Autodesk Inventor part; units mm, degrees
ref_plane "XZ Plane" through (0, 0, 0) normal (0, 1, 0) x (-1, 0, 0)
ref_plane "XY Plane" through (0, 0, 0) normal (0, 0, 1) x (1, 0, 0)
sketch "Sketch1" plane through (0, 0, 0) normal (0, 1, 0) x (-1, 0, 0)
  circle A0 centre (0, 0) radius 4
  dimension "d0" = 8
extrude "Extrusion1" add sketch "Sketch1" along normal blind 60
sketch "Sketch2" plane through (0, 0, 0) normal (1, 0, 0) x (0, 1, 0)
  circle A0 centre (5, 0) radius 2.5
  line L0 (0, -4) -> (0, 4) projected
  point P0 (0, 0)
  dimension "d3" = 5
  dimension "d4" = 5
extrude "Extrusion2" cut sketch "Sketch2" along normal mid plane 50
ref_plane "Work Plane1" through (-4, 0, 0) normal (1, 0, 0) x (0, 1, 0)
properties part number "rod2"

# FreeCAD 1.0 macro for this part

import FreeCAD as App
import Part
import Sketcher
from FreeCAD import Vector

doc = App.newDocument("Part")
body = doc.addObject("PartDesign::Body", "Body")

sketch1 = body.newObject("Sketcher::SketchObject", "Sketch")
sketch1.AttachmentSupport = (doc.getObject("XZ_Plane"), [""])
sketch1.MapMode = "FlatFace"
sketch1.addGeometry(Part.Circle(Vector(0, 0, 0), Vector(0, 0, 1), 4), False)
sketch1.addConstraint(Sketcher.Constraint("Coincident", 0, 3, -1, 1))
sketch1.addConstraint(Sketcher.Constraint("Diameter", 0, 8.0))
pad1 = body.newObject("PartDesign::Pad", "Pad")
pad1.Profile = sketch1
pad1.Length = 60
pad1.Reversed = True

sketch2 = body.newObject("Sketcher::SketchObject", "Sketch001")
sketch2.AttachmentSupport = (doc.getObject("YZ_Plane"), [""])
sketch2.MapMode = "FlatFace"
sketch2.addGeometry(Part.Circle(Vector(5, 0, 0), Vector(0, 0, 1), 2.5), False)
sketch2.addConstraint(Sketcher.Constraint("PointOnObject", 0, 3, -1))
sketch2.addConstraint(Sketcher.Constraint("Diameter", 0, 5.0))
sketch2.addConstraint(Sketcher.Constraint("DistanceX", -1, 1, 0, 3, 5.0))
pocket1 = body.newObject("PartDesign::Pocket", "Pocket")
pocket1.Profile = sketch2
pocket1.Length = 50
pocket1.Midplane = True

doc.recompute()
